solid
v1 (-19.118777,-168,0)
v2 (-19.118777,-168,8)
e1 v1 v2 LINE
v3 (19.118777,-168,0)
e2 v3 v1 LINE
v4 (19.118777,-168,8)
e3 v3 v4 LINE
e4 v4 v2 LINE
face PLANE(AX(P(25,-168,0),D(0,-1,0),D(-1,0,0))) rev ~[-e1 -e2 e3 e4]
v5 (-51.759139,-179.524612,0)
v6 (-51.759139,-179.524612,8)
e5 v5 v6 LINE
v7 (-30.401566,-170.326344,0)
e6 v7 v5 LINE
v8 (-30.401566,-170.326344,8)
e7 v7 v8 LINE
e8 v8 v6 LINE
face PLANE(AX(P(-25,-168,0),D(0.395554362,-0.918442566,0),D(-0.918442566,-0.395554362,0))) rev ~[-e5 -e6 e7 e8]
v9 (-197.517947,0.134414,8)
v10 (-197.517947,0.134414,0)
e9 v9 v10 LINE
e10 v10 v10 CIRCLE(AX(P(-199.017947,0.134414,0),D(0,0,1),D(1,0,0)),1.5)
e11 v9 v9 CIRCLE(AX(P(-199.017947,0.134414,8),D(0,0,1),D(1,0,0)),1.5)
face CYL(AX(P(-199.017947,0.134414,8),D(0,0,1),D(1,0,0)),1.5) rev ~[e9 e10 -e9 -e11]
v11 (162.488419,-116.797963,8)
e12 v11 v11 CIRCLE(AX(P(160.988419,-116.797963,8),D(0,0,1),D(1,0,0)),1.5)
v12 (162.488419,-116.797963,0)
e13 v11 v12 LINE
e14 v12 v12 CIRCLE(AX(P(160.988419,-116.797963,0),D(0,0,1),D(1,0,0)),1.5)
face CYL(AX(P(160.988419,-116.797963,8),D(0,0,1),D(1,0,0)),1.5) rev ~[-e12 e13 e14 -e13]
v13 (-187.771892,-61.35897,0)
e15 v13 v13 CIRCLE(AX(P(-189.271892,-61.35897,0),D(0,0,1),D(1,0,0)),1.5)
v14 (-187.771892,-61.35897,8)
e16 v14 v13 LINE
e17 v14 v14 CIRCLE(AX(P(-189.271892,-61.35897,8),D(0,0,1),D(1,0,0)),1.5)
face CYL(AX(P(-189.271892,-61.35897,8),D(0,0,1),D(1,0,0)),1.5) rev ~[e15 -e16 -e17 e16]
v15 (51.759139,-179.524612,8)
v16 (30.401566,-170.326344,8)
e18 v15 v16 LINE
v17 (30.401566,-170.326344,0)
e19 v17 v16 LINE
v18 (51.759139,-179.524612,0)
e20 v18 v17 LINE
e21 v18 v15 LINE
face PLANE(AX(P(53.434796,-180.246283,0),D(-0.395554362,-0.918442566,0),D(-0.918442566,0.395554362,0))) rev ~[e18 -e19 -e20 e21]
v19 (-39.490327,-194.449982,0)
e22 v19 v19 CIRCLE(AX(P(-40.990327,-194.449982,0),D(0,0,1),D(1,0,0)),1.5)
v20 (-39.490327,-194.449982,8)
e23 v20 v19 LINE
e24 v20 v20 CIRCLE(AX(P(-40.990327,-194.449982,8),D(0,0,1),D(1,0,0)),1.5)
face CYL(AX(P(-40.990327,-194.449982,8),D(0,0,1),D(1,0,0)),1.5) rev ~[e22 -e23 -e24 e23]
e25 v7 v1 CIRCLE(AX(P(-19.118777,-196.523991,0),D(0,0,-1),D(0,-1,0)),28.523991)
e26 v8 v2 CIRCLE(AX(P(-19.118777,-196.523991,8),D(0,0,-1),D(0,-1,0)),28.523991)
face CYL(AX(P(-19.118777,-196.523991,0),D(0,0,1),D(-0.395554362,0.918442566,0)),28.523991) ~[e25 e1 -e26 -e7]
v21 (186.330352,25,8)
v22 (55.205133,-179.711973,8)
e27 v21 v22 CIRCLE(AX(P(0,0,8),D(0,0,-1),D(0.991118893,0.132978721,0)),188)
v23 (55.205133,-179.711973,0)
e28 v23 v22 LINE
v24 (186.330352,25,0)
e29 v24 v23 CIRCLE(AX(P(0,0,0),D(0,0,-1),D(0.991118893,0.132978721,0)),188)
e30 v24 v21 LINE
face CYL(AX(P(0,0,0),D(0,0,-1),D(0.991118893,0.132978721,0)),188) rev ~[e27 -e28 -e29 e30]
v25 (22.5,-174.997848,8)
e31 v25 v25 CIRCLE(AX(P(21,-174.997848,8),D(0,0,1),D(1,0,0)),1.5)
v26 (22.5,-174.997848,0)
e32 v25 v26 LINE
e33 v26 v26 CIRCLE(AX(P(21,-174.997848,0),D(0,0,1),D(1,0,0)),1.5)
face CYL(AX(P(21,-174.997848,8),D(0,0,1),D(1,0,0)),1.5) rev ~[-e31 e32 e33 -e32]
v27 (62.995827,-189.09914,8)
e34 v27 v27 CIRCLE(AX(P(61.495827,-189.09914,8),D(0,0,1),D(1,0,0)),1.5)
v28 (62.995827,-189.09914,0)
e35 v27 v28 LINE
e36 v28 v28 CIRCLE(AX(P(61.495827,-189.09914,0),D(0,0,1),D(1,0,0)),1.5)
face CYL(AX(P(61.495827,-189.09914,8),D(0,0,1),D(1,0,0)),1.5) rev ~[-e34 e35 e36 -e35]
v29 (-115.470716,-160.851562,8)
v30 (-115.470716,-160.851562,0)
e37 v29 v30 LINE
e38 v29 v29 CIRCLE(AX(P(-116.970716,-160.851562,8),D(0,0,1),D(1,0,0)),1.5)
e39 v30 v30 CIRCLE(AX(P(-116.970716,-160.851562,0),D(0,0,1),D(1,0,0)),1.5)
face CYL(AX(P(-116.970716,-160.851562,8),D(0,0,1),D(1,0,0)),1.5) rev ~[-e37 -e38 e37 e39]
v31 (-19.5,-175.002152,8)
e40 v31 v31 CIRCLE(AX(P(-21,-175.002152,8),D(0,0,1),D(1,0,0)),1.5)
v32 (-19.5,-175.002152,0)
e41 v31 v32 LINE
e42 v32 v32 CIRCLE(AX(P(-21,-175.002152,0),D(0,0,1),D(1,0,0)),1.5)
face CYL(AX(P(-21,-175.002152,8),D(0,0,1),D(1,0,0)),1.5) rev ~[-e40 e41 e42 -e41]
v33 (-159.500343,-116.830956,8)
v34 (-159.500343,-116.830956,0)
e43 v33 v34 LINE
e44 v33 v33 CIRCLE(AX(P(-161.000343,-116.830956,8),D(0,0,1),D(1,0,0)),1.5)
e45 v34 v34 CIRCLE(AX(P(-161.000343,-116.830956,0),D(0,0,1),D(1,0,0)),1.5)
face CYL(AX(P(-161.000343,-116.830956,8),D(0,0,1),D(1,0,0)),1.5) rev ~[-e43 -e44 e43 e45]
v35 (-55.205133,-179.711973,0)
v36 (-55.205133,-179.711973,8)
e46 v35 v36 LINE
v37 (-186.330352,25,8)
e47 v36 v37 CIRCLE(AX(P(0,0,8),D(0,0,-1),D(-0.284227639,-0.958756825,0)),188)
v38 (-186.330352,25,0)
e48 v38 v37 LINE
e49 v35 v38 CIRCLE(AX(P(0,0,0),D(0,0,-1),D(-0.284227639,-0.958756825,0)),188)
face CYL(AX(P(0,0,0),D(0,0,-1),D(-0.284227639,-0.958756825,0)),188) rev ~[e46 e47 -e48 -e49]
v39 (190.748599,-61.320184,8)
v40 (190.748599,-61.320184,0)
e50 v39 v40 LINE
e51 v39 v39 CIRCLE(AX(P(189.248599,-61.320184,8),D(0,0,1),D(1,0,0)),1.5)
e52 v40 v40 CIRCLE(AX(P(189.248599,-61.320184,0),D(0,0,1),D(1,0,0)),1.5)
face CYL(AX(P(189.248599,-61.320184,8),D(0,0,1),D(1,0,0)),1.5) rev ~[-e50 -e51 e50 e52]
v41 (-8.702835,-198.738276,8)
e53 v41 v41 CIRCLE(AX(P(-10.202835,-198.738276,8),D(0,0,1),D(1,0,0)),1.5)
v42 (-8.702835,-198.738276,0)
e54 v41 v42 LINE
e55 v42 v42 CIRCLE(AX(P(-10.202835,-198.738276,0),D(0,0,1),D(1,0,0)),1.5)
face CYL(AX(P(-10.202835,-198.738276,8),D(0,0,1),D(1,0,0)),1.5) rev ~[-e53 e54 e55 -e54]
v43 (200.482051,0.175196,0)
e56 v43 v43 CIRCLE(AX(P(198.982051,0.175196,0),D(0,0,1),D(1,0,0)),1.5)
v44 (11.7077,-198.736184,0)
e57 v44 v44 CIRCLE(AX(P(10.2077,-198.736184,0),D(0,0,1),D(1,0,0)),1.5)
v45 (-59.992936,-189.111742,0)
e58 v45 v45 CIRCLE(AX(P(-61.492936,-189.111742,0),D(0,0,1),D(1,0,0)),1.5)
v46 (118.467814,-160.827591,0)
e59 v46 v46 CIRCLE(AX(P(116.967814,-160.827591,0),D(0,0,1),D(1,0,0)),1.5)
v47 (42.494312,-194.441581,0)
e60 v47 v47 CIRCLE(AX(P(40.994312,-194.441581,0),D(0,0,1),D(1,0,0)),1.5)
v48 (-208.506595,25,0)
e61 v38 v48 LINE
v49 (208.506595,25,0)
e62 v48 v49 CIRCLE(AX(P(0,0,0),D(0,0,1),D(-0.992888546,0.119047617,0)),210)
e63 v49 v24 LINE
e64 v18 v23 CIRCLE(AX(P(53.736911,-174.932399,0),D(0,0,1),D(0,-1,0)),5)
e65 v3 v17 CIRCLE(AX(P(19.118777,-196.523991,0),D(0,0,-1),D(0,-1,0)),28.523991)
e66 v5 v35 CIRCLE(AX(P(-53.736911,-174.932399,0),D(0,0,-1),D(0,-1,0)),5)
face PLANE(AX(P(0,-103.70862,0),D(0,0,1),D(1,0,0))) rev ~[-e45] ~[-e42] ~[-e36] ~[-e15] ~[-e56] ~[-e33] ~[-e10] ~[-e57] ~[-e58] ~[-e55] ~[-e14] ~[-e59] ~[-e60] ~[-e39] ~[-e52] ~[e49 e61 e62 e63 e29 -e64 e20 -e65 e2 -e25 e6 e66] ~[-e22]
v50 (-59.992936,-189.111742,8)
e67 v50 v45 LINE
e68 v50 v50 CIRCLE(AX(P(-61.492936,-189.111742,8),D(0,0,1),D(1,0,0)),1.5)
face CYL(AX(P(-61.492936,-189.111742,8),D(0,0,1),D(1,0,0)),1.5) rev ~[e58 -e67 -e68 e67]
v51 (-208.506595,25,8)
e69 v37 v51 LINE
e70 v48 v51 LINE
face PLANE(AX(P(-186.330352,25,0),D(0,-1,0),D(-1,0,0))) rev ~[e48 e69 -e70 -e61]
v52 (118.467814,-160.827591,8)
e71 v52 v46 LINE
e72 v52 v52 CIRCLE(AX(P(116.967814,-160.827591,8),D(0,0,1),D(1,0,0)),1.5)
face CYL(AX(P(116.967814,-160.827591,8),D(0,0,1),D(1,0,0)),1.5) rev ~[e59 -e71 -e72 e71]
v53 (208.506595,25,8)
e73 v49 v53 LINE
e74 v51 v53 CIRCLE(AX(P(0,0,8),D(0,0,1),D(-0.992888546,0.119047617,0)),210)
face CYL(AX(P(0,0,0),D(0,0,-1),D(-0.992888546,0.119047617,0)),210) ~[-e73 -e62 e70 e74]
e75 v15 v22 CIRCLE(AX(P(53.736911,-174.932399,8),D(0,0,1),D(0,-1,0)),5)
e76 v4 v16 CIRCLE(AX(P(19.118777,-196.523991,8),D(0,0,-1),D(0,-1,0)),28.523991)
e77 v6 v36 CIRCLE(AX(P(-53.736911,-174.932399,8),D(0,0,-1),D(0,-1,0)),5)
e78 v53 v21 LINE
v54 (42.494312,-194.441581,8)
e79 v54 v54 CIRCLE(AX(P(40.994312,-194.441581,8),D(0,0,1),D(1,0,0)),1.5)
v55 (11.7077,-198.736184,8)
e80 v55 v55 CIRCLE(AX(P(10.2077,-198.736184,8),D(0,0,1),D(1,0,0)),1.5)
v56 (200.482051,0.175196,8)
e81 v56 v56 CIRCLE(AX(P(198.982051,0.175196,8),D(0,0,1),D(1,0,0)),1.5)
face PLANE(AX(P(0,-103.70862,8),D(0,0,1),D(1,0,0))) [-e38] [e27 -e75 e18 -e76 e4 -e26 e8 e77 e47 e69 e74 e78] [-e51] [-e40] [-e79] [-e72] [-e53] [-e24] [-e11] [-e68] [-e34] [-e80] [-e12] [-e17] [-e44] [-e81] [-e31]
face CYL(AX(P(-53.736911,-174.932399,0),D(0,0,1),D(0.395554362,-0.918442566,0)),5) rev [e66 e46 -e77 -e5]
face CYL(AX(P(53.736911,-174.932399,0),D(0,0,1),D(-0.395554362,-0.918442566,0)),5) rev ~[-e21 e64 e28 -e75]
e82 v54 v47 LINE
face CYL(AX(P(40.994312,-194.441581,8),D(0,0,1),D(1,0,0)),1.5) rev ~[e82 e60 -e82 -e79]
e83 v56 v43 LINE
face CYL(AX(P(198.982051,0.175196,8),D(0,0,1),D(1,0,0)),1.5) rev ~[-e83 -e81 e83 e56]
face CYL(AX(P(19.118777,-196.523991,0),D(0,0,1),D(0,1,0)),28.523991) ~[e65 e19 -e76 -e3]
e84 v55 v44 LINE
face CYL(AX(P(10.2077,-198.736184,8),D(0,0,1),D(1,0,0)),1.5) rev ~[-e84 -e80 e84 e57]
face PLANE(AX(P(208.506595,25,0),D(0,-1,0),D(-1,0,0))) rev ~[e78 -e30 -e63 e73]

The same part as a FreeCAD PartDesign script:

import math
import FreeCAD as App
import Part
import Sketcher
from FreeCAD import Vector


def edges_at(feature, points):
    """Names of the edges that pass closest to the given points."""
    edges = feature.Shape.Edges
    near = lambda p: min(range(len(edges)), key=lambda i: edges[i].distToShape(Part.Vertex(*p))[0])
    return sorted({f"Edge{near(p) + 1}" for p in points})

doc = App.newDocument("Part")
body = doc.addObject("PartDesign::Body", "Body")

# Sketch on XY plane
sketch1 = body.newObject("Sketcher::SketchObject", "Sketch")
sketch1.AttachmentSupport = (doc.getObject("XY_Plane"), [""])
sketch1.MapMode = "FlatFace"
sketch1.addGeometry(Part.ArcOfCircle(Part.Circle(Vector(0, 0, 0), Vector(0, 0, 1), 188), math.radians(172), math.radians(253)), False)
sketch1.addGeometry(Part.LineSegment(Vector(-186, 25, 0), Vector(-209, 25, 0)), False)
sketch1.addGeometry(Part.ArcOfCircle(Part.Circle(Vector(0, 0, 0), Vector(0, 0, 1), 210), math.radians(173), math.radians(367)), False)
sketch1.addGeometry(Part.LineSegment(Vector(209, 25, 0), Vector(186, 25, 0)), False)
sketch1.addGeometry(Part.ArcOfCircle(Part.Circle(Vector(0, 0, 0), Vector(0, 0, 1), 188), math.radians(-73), math.radians(8)), False)
sketch1.addGeometry(Part.LineSegment(Vector(53, -180, 0), Vector(25, -168, 0)), False)
sketch1.addGeometry(Part.LineSegment(Vector(25, -168, 0), Vector(-25, -168, 0)), False)
sketch1.addGeometry(Part.LineSegment(Vector(-25, -168, 0), Vector(-53, -180, 0)), False)
sketch1.addConstraint(Sketcher.Constraint("Coincident", 0, 1, 1, 1))
sketch1.addConstraint(Sketcher.Constraint("Coincident", 1, 2, 2, 1))
sketch1.addConstraint(Sketcher.Constraint("Coincident", 2, 2, 3, 1))
sketch1.addConstraint(Sketcher.Constraint("Coincident", 3, 2, 4, 2))
sketch1.addConstraint(Sketcher.Constraint("Coincident", 4, 1, 5, 1))
sketch1.addConstraint(Sketcher.Constraint("Coincident", 5, 2, 6, 1))
sketch1.addConstraint(Sketcher.Constraint("Coincident", 6, 2, 7, 1))
sketch1.addConstraint(Sketcher.Constraint("Coincident", 7, 2, 0, 2))
sketch1.addConstraint(Sketcher.Constraint("Horizontal", 1))
sketch1.addConstraint(Sketcher.Constraint("Horizontal", 3))
sketch1.addConstraint(Sketcher.Constraint("Horizontal", 6))
sketch1.addConstraint(Sketcher.Constraint("Coincident", 0, 3, -1, 1))
sketch1.addConstraint(Sketcher.Constraint("Coincident", 2, 3, -1, 1))
sketch1.addConstraint(Sketcher.Constraint("Coincident", 4, 3, -1, 1))
sketch1.addConstraint(Sketcher.Constraint("Equal", 0, 4))
sketch1.addConstraint(Sketcher.Constraint("Horizontal", 1, 2, 2, 2))
sketch1.addConstraint(Sketcher.Constraint("Horizontal", 4, 1, 7, 2))
sketch1.addConstraint(Sketcher.Constraint("Equal", 5, 7))
sketch1.addConstraint(Sketcher.Constraint("Radius", 0, 188.0))
sketch1.addConstraint(Sketcher.Constraint("Radius", 2, 210.0))
sketch1.addConstraint(Sketcher.Constraint("DistanceX", 6, 2, 6, 1, 50.0))
sketch1.addConstraint(Sketcher.Constraint("DistanceY", -1, 1, 0, 1, 25.0))
sketch1.addConstraint(Sketcher.Constraint("DistanceY", 5, 2, -1, 1, 168.0))
sketch1.addConstraint(Sketcher.Constraint("DistanceX", 4, 1, 2, 2, 155.071799))
pad1 = body.newObject("PartDesign::Pad", "Pad")
pad1.Profile = sketch1
pad1.Length = 8

# Sketch on XY plane
sketch2 = body.newObject("Sketcher::SketchObject", "Sketch001")
sketch2.AttachmentSupport = (doc.getObject("XY_Plane"), [""])
sketch2.MapMode = "FlatFace"
sketch2.AttachmentOffset = App.Placement(Vector(0, 0, 8), App.Rotation())
sketch2.addGeometry(Part.Circle(Vector(-61.5, -189.1, 0), Vector(0, 0, 1), 1.5), False)
sketch2.addGeometry(Part.Circle(Vector(-117, -160.9, 0), Vector(0, 0, 1), 1.5), False)
sketch2.addGeometry(Part.Circle(Vector(-161, -116.8, 0), Vector(0, 0, 1), 1.5), False)
sketch2.addGeometry(Part.Circle(Vector(-189.3, -61.4, 0), Vector(0, 0, 1), 1.5), False)
sketch2.addGeometry(Part.Circle(Vector(-199, 0.1, 0), Vector(0, 0, 1), 1.5), False)
sketch2.addGeometry(Part.Circle(Vector(61.5, -189.1, 0), Vector(0, 0, 1), 1.5), False)
sketch2.addGeometry(Part.Circle(Vector(117, -160.8, 0), Vector(0, 0, 1), 1.5), False)
sketch2.addGeometry(Part.Circle(Vector(161, -116.8, 0), Vector(0, 0, 1), 1.5), False)
sketch2.addGeometry(Part.Circle(Vector(189.2, -61.3, 0), Vector(0, 0, 1), 1.5), False)
sketch2.addGeometry(Part.Circle(Vector(199, 0.2, 0), Vector(0, 0, 1), 1.5), False)
sketch2.addGeometry(Part.Circle(Vector(-21, -175, 0), Vector(0, 0, 1), 1.5), False)
sketch2.addGeometry(Part.Circle(Vector(-41, -194.4, 0), Vector(0, 0, 1), 1.5), False)
sketch2.addGeometry(Part.Circle(Vector(-10.2, -198.7, 0), Vector(0, 0, 1), 1.5), False)
sketch2.addGeometry(Part.Circle(Vector(21, -175, 0), Vector(0, 0, 1), 1.5), False)
sketch2.addGeometry(Part.Circle(Vector(10.2, -198.7, 0), Vector(0, 0, 1), 1.5), False)
sketch2.addGeometry(Part.Circle(Vector(41, -194.4, 0), Vector(0, 0, 1), 1.5), False)
sketch2.addConstraint(Sketcher.Constraint("Equal", 0, 1))
sketch2.addConstraint(Sketcher.Constraint("Equal", 1, 2))
sketch2.addConstraint(Sketcher.Constraint("Equal", 2, 3))
sketch2.addConstraint(Sketcher.Constraint("Equal", 3, 4))
sketch2.addConstraint(Sketcher.Constraint("Equal", 4, 5))
sketch2.addConstraint(Sketcher.Constraint("Equal", 5, 6))
sketch2.addConstraint(Sketcher.Constraint("Equal", 6, 7))
sketch2.addConstraint(Sketcher.Constraint("Equal", 7, 8))
sketch2.addConstraint(Sketcher.Constraint("Equal", 8, 9))
sketch2.addConstraint(Sketcher.Constraint("Equal", 9, 10))
sketch2.addConstraint(Sketcher.Constraint("Equal", 10, 11))
sketch2.addConstraint(Sketcher.Constraint("Equal", 11, 12))
sketch2.addConstraint(Sketcher.Constraint("Equal", 12, 13))
sketch2.addConstraint(Sketcher.Constraint("Equal", 13, 14))
sketch2.addConstraint(Sketcher.Constraint("Equal", 14, 15))
sketch2.addConstraint(Sketcher.Constraint("Diameter", 0, 3.0))
sketch2.addConstraint(Sketcher.Constraint("DistanceX", 10, 3, -1, 1, 21.0))
sketch2.addConstraint(Sketcher.Constraint("DistanceX", -1, 1, 13, 3, 21.0))
sketch2.addConstraint(Sketcher.Constraint("DistanceX", -1, 1, 8, 3, 189.248599))
sketch2.addConstraint(Sketcher.Constraint("DistanceX", -1, 1, 14, 3, 10.2077))
sketch2.addConstraint(Sketcher.Constraint("DistanceY", 0, 3, 5, 3, 0.012602))
sketch2.addConstraint(Sketcher.Constraint("DistanceY", 1, 3, 7, 3, 44.053599))
sketch2.addConstraint(Sketcher.Constraint("DistanceX", 0, 3, 12, 3, 51.290101))
sketch2.addConstraint(Sketcher.Constraint("DistanceY", 0, 3, -1, 1, 189.111742))
sketch2.addConstraint(Sketcher.Constraint("DistanceY", 1, 3, -1, 1, 160.851562))
sketch2.addConstraint(Sketcher.Constraint("DistanceX", 3, 3, -1, 1, 189.271892))
sketch2.addConstraint(Sketcher.Constraint("DistanceY", 3, 3, -1, 1, 61.35897))
sketch2.addConstraint(Sketcher.Constraint("DistanceY", 6, 3, -1, 1, 160.827591))
sketch2.addConstraint(Sketcher.Constraint("DistanceX", -1, 1, 7, 3, 160.988419))
sketch2.addConstraint(Sketcher.Constraint("DistanceX", -1, 1, 9, 3, 198.982051))
sketch2.addConstraint(Sketcher.Constraint("DistanceY", 10, 3, -1, 1, 175.002152))
sketch2.addConstraint(Sketcher.Constraint("DistanceY", 11, 3, -1, 1, 194.449982))
sketch2.addConstraint(Sketcher.Constraint("DistanceY", 13, 3, -1, 1, 174.997848))
sketch2.addConstraint(Sketcher.Constraint("DistanceY", 15, 3, -1, 1, 194.441581))
sketch2.addConstraint(Sketcher.Constraint("DistanceX", 1, 3, 0, 3, 55.47778))
sketch2.addConstraint(Sketcher.Constraint("DistanceX", 3, 3, 2, 3, 28.271549))
sketch2.addConstraint(Sketcher.Constraint("DistanceY", 2, 3, 4, 3, 116.96537))
sketch2.addConstraint(Sketcher.Constraint("DistanceX", 4, 3, 1, 3, 82.047231))
sketch2.addConstraint(Sketcher.Constraint("DistanceX", 2, 3, 5, 3, 222.49617))
sketch2.addConstraint(Sketcher.Constraint("DistanceX", 0, 3, 6, 3, 178.46075))
sketch2.addConstraint(Sketcher.Constraint("DistanceY", 7, 3, 8, 3, 55.477779))
sketch2.addConstraint(Sketcher.Constraint("DistanceY", 8, 3, 9, 3, 61.49538))
sketch2.addConstraint(Sketcher.Constraint("DistanceX", 0, 3, 11, 3, 20.502609))
sketch2.addConstraint(Sketcher.Constraint("DistanceX", 12, 3, 5, 3, 71.698662))
sketch2.addConstraint(Sketcher.Constraint("DistanceY", 12, 3, 13, 3, 23.740428))
sketch2.addConstraint(Sketcher.Constraint("DistanceX", 14, 3, 15, 3, 30.786612))
sketch2.addConstraint(Sketcher.Constraint("DistanceY", 2, 3, -1, 1, 116.830956))
sketch2.addConstraint(Sketcher.Constraint("DistanceY", 14, 3, -1, 1, 198.736184))
pocket1 = body.newObject("PartDesign::Pocket", "Pocket")
pocket1.Profile = sketch2
pocket1.Type = "ThroughAll"
doc.recompute()

fillet = body.newObject("PartDesign::Fillet", "Fillet")
fillet.Base = (pocket1, edges_at(pocket1, [(25, -168, 4), (-25, -168, 4)]))
fillet.Radius = 28.523991
doc.recompute()

fillet2 = body.newObject("PartDesign::Fillet", "Fillet001")
fillet2.Base = (fillet, edges_at(fillet, [(53.435, -180.246, 4), (-53.435, -180.246, 4)]))
fillet2.Radius = 5

doc.recompute()
